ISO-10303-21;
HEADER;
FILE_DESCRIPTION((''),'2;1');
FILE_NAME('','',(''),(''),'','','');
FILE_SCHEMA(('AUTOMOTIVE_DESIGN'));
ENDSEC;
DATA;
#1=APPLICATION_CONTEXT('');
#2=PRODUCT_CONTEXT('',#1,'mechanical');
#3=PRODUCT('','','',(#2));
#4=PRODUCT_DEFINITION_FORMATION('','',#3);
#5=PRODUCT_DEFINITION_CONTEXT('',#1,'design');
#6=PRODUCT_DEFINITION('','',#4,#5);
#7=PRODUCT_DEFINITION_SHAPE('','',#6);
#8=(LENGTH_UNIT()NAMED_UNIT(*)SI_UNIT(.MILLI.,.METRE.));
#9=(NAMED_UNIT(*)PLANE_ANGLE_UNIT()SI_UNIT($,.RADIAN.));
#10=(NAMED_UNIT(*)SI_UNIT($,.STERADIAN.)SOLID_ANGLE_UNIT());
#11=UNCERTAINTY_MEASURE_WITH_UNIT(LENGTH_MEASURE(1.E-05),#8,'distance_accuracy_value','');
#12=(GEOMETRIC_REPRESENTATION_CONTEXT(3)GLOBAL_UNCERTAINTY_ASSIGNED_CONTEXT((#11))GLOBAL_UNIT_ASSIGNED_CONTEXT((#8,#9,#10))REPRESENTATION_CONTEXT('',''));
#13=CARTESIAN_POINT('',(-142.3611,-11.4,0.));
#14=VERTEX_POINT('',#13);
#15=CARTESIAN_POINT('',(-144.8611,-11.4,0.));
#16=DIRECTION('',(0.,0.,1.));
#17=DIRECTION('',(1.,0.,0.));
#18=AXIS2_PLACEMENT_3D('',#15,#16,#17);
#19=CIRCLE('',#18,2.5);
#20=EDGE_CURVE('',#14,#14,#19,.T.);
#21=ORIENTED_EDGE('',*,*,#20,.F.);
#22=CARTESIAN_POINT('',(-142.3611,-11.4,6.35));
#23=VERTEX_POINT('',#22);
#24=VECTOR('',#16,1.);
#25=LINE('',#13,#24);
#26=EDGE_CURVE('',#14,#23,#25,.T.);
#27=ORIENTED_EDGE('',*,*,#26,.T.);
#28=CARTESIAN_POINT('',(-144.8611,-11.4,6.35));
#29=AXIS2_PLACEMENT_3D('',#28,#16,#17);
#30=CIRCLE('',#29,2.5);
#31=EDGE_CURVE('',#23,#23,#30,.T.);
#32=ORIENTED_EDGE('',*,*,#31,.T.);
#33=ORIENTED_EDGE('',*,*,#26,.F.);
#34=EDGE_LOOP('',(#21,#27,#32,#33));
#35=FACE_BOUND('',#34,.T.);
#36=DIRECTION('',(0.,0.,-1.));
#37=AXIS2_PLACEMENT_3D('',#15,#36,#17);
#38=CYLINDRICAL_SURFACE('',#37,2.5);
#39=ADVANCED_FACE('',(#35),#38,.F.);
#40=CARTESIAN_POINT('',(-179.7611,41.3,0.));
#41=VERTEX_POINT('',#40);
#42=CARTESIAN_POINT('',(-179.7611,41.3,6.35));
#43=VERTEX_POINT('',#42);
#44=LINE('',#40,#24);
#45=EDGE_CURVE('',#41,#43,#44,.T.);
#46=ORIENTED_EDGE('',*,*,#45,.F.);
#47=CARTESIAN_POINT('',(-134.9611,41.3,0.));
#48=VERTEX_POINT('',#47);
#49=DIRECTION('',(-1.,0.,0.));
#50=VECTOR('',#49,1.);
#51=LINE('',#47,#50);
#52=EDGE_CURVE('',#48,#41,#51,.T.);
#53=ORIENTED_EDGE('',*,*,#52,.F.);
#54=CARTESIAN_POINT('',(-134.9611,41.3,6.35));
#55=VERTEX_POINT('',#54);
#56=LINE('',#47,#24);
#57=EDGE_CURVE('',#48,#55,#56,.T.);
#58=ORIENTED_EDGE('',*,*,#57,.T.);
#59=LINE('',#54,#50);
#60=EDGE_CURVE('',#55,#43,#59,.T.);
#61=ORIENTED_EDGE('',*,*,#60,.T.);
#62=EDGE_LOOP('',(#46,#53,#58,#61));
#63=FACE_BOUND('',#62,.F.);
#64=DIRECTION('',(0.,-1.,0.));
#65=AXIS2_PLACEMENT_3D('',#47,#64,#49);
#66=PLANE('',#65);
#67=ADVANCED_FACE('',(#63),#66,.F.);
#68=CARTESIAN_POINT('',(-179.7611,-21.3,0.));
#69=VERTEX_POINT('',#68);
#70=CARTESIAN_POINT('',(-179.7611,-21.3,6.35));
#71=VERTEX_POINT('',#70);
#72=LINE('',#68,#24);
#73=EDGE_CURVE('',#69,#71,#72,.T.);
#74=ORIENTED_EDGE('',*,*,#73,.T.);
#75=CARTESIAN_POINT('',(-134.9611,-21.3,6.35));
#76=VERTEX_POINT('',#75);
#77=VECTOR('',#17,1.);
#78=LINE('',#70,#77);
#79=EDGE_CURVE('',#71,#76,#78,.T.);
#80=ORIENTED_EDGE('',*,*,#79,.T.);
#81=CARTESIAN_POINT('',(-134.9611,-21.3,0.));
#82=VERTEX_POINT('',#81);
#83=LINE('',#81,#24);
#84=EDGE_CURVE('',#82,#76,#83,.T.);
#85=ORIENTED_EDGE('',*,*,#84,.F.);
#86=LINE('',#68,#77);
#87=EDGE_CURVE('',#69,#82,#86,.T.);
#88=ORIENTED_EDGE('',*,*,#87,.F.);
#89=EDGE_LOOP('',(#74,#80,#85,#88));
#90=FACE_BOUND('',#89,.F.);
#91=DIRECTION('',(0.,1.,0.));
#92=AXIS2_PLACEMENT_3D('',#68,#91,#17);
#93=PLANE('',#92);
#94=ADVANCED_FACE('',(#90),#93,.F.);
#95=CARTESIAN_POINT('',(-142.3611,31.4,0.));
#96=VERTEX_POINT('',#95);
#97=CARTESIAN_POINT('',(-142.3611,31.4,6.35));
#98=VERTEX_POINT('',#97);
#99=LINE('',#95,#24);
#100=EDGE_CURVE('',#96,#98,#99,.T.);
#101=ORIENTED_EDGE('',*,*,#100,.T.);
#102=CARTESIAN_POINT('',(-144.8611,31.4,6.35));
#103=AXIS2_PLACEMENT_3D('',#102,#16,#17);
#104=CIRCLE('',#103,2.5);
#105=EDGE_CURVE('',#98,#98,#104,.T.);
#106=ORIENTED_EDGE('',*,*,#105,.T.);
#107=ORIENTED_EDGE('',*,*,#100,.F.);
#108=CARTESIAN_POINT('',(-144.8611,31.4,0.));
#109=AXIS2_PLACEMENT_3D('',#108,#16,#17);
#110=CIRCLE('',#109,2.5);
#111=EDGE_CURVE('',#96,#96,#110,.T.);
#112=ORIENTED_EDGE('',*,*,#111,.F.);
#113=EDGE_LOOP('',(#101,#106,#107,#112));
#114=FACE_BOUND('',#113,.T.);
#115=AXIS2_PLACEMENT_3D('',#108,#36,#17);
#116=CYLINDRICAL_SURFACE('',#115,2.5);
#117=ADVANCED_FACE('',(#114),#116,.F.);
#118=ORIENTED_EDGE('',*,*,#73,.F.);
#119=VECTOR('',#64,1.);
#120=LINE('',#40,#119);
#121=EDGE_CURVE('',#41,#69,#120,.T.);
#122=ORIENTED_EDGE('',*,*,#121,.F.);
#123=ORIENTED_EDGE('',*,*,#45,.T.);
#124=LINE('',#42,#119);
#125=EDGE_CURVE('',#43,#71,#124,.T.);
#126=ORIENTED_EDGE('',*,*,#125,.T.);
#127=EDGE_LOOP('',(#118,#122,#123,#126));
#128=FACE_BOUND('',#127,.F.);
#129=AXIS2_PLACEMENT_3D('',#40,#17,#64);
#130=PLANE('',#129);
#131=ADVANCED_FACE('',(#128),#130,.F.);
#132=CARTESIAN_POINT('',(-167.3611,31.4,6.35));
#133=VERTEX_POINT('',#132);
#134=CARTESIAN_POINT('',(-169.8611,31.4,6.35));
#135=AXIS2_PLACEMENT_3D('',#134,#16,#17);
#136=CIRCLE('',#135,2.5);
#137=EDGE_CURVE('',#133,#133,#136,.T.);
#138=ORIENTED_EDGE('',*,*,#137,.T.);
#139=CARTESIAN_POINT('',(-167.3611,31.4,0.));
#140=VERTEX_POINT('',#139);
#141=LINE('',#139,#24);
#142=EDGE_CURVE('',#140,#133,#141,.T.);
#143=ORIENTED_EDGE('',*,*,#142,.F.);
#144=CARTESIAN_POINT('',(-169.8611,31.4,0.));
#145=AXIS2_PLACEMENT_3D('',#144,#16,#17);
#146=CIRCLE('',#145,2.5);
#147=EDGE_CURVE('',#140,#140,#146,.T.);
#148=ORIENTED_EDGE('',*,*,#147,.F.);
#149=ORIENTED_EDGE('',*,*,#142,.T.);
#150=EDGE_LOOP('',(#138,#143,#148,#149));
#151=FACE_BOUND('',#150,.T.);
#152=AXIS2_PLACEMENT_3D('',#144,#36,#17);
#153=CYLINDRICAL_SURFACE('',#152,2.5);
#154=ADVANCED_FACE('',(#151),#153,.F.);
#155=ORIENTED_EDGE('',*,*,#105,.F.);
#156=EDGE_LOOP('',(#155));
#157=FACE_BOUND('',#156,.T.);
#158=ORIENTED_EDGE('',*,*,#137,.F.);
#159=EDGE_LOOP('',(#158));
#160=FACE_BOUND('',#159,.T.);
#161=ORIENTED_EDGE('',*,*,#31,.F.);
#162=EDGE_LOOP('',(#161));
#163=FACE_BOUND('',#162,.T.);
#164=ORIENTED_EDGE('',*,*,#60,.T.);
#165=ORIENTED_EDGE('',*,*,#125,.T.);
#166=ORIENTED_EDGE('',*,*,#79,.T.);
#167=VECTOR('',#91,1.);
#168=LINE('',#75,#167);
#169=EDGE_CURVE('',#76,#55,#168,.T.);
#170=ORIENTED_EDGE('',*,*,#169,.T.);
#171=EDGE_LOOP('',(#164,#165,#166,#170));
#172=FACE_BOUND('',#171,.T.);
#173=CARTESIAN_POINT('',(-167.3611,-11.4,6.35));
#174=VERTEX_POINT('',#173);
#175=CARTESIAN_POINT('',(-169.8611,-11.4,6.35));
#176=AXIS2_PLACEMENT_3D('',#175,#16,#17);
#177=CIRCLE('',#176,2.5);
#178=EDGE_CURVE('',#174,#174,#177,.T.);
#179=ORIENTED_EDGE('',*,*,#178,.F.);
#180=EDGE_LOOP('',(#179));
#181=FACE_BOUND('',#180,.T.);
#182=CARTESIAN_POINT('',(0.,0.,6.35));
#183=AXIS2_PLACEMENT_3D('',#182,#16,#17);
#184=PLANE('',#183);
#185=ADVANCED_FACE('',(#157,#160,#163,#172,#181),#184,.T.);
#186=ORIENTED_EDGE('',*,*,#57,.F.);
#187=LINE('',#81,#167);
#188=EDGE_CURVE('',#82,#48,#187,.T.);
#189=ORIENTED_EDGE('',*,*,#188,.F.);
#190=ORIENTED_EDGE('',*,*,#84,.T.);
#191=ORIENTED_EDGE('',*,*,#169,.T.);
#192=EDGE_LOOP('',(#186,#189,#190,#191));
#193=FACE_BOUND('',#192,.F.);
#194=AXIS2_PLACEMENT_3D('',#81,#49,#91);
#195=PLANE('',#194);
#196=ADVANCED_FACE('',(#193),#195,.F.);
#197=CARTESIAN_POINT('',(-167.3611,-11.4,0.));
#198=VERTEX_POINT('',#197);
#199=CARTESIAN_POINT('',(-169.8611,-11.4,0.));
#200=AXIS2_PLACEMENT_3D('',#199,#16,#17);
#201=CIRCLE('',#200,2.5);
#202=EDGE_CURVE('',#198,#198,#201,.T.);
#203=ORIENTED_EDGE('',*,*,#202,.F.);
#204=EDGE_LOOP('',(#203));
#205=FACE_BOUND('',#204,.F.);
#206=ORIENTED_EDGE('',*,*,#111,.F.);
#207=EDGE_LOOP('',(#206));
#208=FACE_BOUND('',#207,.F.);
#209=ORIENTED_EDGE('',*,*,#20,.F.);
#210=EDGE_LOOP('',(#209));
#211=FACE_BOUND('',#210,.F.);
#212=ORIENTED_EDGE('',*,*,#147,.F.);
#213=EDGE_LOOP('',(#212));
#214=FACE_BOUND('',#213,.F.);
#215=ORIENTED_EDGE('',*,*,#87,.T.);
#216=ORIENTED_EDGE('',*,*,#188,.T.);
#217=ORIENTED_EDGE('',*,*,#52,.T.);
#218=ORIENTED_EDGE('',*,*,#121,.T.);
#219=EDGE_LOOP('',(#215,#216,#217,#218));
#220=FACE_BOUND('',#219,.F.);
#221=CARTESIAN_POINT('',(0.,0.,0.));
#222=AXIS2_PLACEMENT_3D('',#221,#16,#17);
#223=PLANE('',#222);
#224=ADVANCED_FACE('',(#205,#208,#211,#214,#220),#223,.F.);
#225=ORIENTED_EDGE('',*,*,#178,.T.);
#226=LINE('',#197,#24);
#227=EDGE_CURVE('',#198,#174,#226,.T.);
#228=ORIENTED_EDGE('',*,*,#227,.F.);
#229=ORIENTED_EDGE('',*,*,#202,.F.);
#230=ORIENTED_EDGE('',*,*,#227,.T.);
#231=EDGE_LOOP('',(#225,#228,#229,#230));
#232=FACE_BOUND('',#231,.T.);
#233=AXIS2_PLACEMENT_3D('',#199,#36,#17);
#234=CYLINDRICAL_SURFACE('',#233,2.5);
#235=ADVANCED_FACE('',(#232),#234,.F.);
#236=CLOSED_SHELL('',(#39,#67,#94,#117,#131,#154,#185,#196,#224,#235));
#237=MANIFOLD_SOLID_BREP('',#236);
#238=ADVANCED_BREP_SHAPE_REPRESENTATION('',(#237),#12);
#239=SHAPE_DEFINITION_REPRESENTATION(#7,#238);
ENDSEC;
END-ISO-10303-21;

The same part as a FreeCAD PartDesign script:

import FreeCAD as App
import Part
import Sketcher
Q = App.Units.Quantity


def add_polygon(sketch, points):
    """Adds a closed chain of lines whose ends are joined by coincident constraints."""
    first, n = sketch.GeometryCount, len(points)
    for a, b in zip(points, points[1:] + points[:1]):
        sketch.addGeometry(Part.LineSegment(App.Vector(*a, 0), App.Vector(*b, 0)), False)
    for i in range(n):
        sketch.addConstraint(Sketcher.Constraint("Coincident", first + i, 2, first + (i + 1) % n, 1))

doc = App.newDocument("Part")
body = doc.addObject("PartDesign::Body", "Body")

sketch1 = body.newObject("Sketcher::SketchObject", "Sketch")
sketch1.AttachmentSupport = (doc.getObject("XY_Plane"), [""])
sketch1.MapMode = "FlatFace"
add_polygon(sketch1, [(-135, -21.3), (-135, 41.3), (-179.8, 41.3), (-179.8, -21.3)])
sketch1.addGeometry(Part.Circle(App.Vector(-169.9, -11.4, 0), App.Vector(0, 0, 1), 2.5), False)
sketch1.addGeometry(Part.Circle(App.Vector(-144.9, -11.4, 0), App.Vector(0, 0, 1), 2.5), False)
sketch1.addGeometry(Part.Circle(App.Vector(-169.9, 31.4, 0), App.Vector(0, 0, 1), 2.5), False)
sketch1.addGeometry(Part.Circle(App.Vector(-144.9, 31.4, 0), App.Vector(0, 0, 1), 2.5), False)
sketch1.addConstraint(Sketcher.Constraint("Vertical", 0))
sketch1.addConstraint(Sketcher.Constraint("Horizontal", 1))
sketch1.addConstraint(Sketcher.Constraint("Vertical", 2))
sketch1.addConstraint(Sketcher.Constraint("Horizontal", 3))
sketch1.addConstraint(Sketcher.Constraint("Equal", 4, 5))
sketch1.addConstraint(Sketcher.Constraint("Equal", 5, 6))
sketch1.addConstraint(Sketcher.Constraint("Equal", 6, 7))
sketch1.addConstraint(Sketcher.Constraint("Horizontal", 4, 3, 5, 3))
sketch1.addConstraint(Sketcher.Constraint("Horizontal", 6, 3, 7, 3))
sketch1.addConstraint(Sketcher.Constraint("Vertical", 4, 3, 6, 3))
sketch1.addConstraint(Sketcher.Constraint("Vertical", 5, 3, 7, 3))
sketch1.addConstraint(Sketcher.Constraint("Diameter", 4, Q("5 mm")))
sketch1.addConstraint(Sketcher.Constraint("DistanceX", 1, 2, 1, 1, Q("44.8 mm")))
sketch1.addConstraint(Sketcher.Constraint("DistanceY", 0, 1, 0, 2, Q("62.6 mm")))
sketch1.addConstraint(Sketcher.Constraint("DistanceX", 4, 3, 5, 3, Q("25 mm")))
sketch1.addConstraint(Sketcher.Constraint("DistanceY", 4, 3, -1, 1, Q("11.4 mm")))
sketch1.addConstraint(Sketcher.Constraint("DistanceY", -1, 1, 6, 3, Q("31.4 mm")))
sketch1.addConstraint(Sketcher.Constraint("DistanceY", -1, 1, 0, 2, Q("41.3 mm")))
sketch1.addConstraint(Sketcher.Constraint("DistanceX", 7, 3, 0, 2, Q("9.9 mm")))
sketch1.addConstraint(Sketcher.Constraint("DistanceX", 4, 3, -1, 1, Q("169.861 mm")))
pad1 = body.newObject("PartDesign::Pad", "Pad")
pad1.Profile = sketch1
pad1.Length = 6.35

doc.recompute()
